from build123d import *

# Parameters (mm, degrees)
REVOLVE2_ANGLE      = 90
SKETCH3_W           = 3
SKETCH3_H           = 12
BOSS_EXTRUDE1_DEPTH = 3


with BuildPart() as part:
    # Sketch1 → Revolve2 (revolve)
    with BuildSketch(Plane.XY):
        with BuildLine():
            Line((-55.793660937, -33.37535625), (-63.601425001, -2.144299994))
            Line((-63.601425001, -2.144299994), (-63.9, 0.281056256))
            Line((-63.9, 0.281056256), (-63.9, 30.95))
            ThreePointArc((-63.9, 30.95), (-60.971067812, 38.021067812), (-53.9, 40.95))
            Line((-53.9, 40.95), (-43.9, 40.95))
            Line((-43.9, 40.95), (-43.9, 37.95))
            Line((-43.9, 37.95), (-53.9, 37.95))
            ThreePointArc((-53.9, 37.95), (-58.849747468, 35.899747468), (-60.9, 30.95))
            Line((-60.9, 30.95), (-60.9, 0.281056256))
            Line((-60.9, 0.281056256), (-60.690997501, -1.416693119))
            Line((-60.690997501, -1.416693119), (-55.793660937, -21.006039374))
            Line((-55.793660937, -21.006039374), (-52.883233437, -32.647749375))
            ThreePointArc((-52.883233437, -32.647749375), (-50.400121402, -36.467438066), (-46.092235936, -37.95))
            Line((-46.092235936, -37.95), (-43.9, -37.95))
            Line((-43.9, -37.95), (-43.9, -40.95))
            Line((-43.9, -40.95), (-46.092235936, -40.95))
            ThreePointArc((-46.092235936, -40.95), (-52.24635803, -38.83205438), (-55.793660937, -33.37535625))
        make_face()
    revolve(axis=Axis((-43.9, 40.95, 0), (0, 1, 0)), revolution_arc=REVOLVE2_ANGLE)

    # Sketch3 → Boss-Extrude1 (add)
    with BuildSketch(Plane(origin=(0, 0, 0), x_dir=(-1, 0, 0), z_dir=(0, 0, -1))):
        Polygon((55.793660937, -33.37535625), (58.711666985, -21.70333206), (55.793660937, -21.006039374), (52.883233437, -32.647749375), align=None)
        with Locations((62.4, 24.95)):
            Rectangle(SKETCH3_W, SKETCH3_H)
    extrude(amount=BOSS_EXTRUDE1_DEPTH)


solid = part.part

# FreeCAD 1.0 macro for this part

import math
import FreeCAD as App
import Part
import Sketcher

V = App.Vector
Q = App.Units.Quantity


def add_polygon(sketch, points):
    """Adds a closed chain of lines whose ends are joined by coincident constraints."""
    first, n = sketch.GeometryCount, len(points)
    for a, b in zip(points, points[1:] + points[:1]):
        sketch.addGeometry(Part.LineSegment(App.Vector(*a, 0), App.Vector(*b, 0)), False)
    for i in range(n):
        sketch.addConstraint(Sketcher.Constraint("Coincident", first + i, 2, first + (i + 1) % n, 1))

doc = App.newDocument("Part")
body = doc.addObject("PartDesign::Body", "Body")

# Sketch on XY plane
sketch1 = doc.addObject("Sketcher::SketchObject", "Sketch")
body.addObject(sketch1)
sketch1.AttachmentSupport = (doc.XY_Plane, [""])
sketch1.MapMode = "FlatFace"
sketch1.addGeometry([
    Part.LineSegment(V(-63.6, -2.1, 0), V(-55.8, -33.4, 0)),  # 0
    Part.ArcOfCircle(Part.Circle(V(-46.1, -31, 0), V(0, 0, 1), 10), math.radians(-166), math.radians(-90)),  # 1
    Part.LineSegment(V(-46.1, -41, 0), V(-43.9, -41, 0)),  # 2
    Part.LineSegment(V(-43.9, -41, 0), V(-43.9, -38, 0)),  # 3
    Part.LineSegment(V(-43.9, -38, 0), V(-46.1, -38, 0)),  # 4
    Part.ArcOfCircle(Part.Circle(V(-46.1, -30.9, 0), V(0, 0, 1), 7), math.radians(-166), math.radians(-90)),  # 5
    Part.LineSegment(V(-52.9, -32.6, 0), V(-55.8, -21, 0)),  # 6
    Part.LineSegment(V(-55.8, -21, 0), V(-60.7, -1.4, 0)),  # 7
    Part.LineSegment(V(-60.7, -1.4, 0), V(-60.9, 0.3, 0)),  # 8
    Part.LineSegment(V(-60.9, 0.3, 0), V(-60.9, 30.9, 0)),  # 9
    Part.ArcOfCircle(Part.Circle(V(-53.9, 30.9, 0), V(0, 0, 1), 7), math.radians(90), math.radians(180)),  # 10
    Part.LineSegment(V(-53.9, 38, 0), V(-43.9, 38, 0)),  # 11
    Part.LineSegment(V(-43.9, 38, 0), V(-43.9, 41, 0)),  # 12
    Part.LineSegment(V(-43.9, 41, 0), V(-53.9, 41, 0)),  # 13
    Part.ArcOfCircle(Part.Circle(V(-53.9, 30.9, 0), V(0, 0, 1), 10), math.radians(90), math.radians(180)),  # 14
    Part.LineSegment(V(-63.9, 30.9, 0), V(-63.9, 0.3, 0)),  # 15
    Part.LineSegment(V(-63.9, 0.3, 0), V(-63.6, -2.1, 0)),  # 16
], False)
sketch1.addGeometry(Part.LineSegment(V(-43.9, -41, 0), V(-43.9, 41, 0)), True)  # axis
sketch1.addConstraint([
    Sketcher.Constraint("Tangent", 0, 2, 1, 1),
    Sketcher.Constraint("Tangent", 1, 2, 2, 1),
    Sketcher.Constraint("Coincident", 2, 2, 3, 1),
    Sketcher.Constraint("Coincident", 3, 2, 4, 1),
    Sketcher.Constraint("Tangent", 4, 2, 5, 2),
    Sketcher.Constraint("Tangent", 5, 1, 6, 1),
    Sketcher.Constraint("Coincident", 6, 2, 7, 1),
    Sketcher.Constraint("Coincident", 7, 2, 8, 1),
    Sketcher.Constraint("Coincident", 8, 2, 9, 1),
    Sketcher.Constraint("Tangent", 9, 2, 10, 2),
    Sketcher.Constraint("Tangent", 10, 1, 11, 1),
    Sketcher.Constraint("Coincident", 11, 2, 12, 1),
    Sketcher.Constraint("Coincident", 12, 2, 13, 1),
    Sketcher.Constraint("Tangent", 13, 2, 14, 1),
    Sketcher.Constraint("Tangent", 14, 2, 15, 1),
    Sketcher.Constraint("Coincident", 15, 2, 16, 1),
    Sketcher.Constraint("Coincident", 16, 2, 0, 1),
    Sketcher.Constraint("Horizontal", 2),
    Sketcher.Constraint("Vertical", 3),
    Sketcher.Constraint("Horizontal", 4),
    Sketcher.Constraint("Vertical", 9),
    Sketcher.Constraint("Horizontal", 11),
    Sketcher.Constraint("Vertical", 12),
    Sketcher.Constraint("Horizontal", 13),
    Sketcher.Constraint("Vertical", 15),
    Sketcher.Constraint("Vertical", 17),
    Sketcher.Constraint("Coincident", 5, 3, 1, 3),
    Sketcher.Constraint("Coincident", 14, 3, 10, 3),
    Sketcher.Constraint("Coincident", 17, 1, 2, 2),
    Sketcher.Constraint("Coincident", 17, 2, 12, 2),
    Sketcher.Constraint("Equal", 5, 10),
    Sketcher.Constraint("Equal", 1, 14),
    Sketcher.Constraint("Parallel", 0, 6),
    Sketcher.Constraint("Parallel", 6, 7),
    Sketcher.Constraint("Parallel", 8, 16),
    Sketcher.Constraint("Horizontal", 8, 2, 15, 2),
    Sketcher.Constraint("Vertical", 0, 2, 6, 2),
    Sketcher.Constraint("Radius", 1, Q("10 mm")),
    Sketcher.Constraint("Radius", 5, Q("7 mm")),
    Sketcher.Constraint("DistanceX", 11, 1, 11, 2, Q("10 mm")),
    Sketcher.Constraint("Distance", 6, Q("12 mm")),
    Sketcher.Constraint("DistanceY", 17, 1, 17, 2, Q("81.9 mm")),
    Sketcher.Constraint("DistanceX", 10, 3, -1, 1, Q("53.9 mm")),
    Sketcher.Constraint("DistanceY", 1, 3, -1, 1, Q("30.95 mm")),
    Sketcher.Constraint("DistanceY", 16, 2, -1, 1, Q("2.1443 mm")),
    Sketcher.Constraint("DistanceX", 2, 1, 2, 2, Q("2.192236 mm")),
    Sketcher.Constraint("DistanceY", 9, 1, 9, 2, Q("30.668944 mm")),
])
revolution = doc.addObject("PartDesign::Revolution", "Revolution")
body.addObject(revolution)
revolution.Profile = sketch1
revolution.ReferenceAxis = (sketch1, ["Axis0"])
revolution.Angle = 90

# Sketch on XY plane
sketch2 = doc.addObject("Sketcher::SketchObject", "Sketch001")
body.addObject(sketch2)
sketch2.AttachmentSupport = (doc.XY_Plane, [""])
sketch2.MapMode = "FlatFace"
add_polygon(sketch2, [(-55.8, -33.4), (-58.7, -21.7), (-55.8, -21), (-52.9, -32.6)])  # lines 0-3
add_polygon(sketch2, [(-60.9, 30.9), (-60.9, 18.9), (-63.9, 18.9), (-63.9, 30.9)])  # lines 4-7
sketch2.addConstraint([
    Sketcher.Constraint("Vertical", 4),
    Sketcher.Constraint("Horizontal", 5),
    Sketcher.Constraint("Vertical", 6),
    Sketcher.Constraint("Horizontal", 7),
    Sketcher.Constraint("Parallel", 0, 2),
    Sketcher.Constraint("Perpendicular", 2, 3),
    Sketcher.Constraint("Vertical", 1, 2, 3, 2),
    Sketcher.Constraint("DistanceX", 5, 2, 5, 1, Q("3 mm")),
    Sketcher.Constraint("DistanceY", 4, 2, 4, 1, Q("12 mm")),
    Sketcher.Constraint("Distance", 2, Q("12 mm")),
    Sketcher.Constraint("Distance", 3, Q("3 mm")),
    Sketcher.Constraint("DistanceX", 4, 2, -1, 1, Q("60.9 mm")),
    Sketcher.Constraint("DistanceY", -1, 1, 4, 2, Q("18.95 mm")),
    Sketcher.Constraint("DistanceX", 1, 2, -1, 1, Q("55.793661 mm")),
    Sketcher.Constraint("DistanceY", 1, 2, -1, 1, Q("21.006039 mm")),
    Sketcher.Constraint("Distance", 0, Q("12.031247 mm")),
])
pad1 = doc.addObject("PartDesign::Pad", "Pad")
body.addObject(pad1)
pad1.Profile = sketch2
pad1.Length = 3
pad1.Reversed = True

doc.recompute()
